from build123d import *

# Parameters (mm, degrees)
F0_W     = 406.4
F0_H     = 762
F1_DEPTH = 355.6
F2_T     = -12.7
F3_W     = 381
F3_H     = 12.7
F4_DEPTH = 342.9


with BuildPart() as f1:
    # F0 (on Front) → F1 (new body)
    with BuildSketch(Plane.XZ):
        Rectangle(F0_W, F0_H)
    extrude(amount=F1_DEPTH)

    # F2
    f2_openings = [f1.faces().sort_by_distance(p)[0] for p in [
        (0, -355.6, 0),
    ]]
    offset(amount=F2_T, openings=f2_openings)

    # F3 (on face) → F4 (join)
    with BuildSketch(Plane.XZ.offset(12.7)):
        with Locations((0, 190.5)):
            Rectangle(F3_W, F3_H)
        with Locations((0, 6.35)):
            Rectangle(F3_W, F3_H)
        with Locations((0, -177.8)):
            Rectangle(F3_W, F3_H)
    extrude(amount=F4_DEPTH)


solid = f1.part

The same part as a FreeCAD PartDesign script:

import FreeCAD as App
import Part
import Sketcher
from FreeCAD import Vector
Q = App.Units.Quantity


def faces_at(feature, points):
    """Names of the faces that lie closest to the given points."""
    faces = feature.Shape.Faces
    near = lambda p: min(range(len(faces)), key=lambda i: faces[i].distToShape(Part.Vertex(*p))[0])
    return sorted({f"Face{near(p) + 1}" for p in points})

doc = App.newDocument("Part")
params = doc.addObject("Spreadsheet::Sheet", "Params")
for row, (alias, value) in enumerate([
    ("sketch1_width", "16 in"),
    ("sketch1_height", "30 in"),
    ("pad1_length", "14 in"),
    ("thickness_wall", "0.5 in"),
    ("sketch2_width", "15 in"),
    ("sketch2_height", "0.5 in"),
    ("pad2_length", "13.5 in"),
], start=1):
    params.set(f"A{row}", alias)
    params.set(f"B{row}", "=" + value)
    params.setAlias(f"B{row}", alias)

body = doc.addObject("PartDesign::Body", "Body")

# Sketch on XZ plane
sketch1 = body.newObject("Sketcher::SketchObject", "Sketch")
sketch1.AttachmentSupport = (doc.getObject("XZ_Plane"), [""])
sketch1.MapMode = "FlatFace"
sketch1.addGeometry(Part.LineSegment(Vector(-203, 381, 0), Vector(-203, -381, 0)), False)
sketch1.addGeometry(Part.LineSegment(Vector(-203, -381, 0), Vector(203, -381, 0)), False)
sketch1.addGeometry(Part.LineSegment(Vector(203, -381, 0), Vector(203, 381, 0)), False)
sketch1.addGeometry(Part.LineSegment(Vector(203, 381, 0), Vector(-203, 381, 0)), False)
sketch1.addConstraint(Sketcher.Constraint("Coincident", 0, 2, 1, 1))
sketch1.addConstraint(Sketcher.Constraint("Coincident", 1, 2, 2, 1))
sketch1.addConstraint(Sketcher.Constraint("Coincident", 2, 2, 3, 1))
sketch1.addConstraint(Sketcher.Constraint("Coincident", 3, 2, 0, 1))
sketch1.addConstraint(Sketcher.Constraint("Vertical", 0))
sketch1.addConstraint(Sketcher.Constraint("Horizontal", 1))
sketch1.addConstraint(Sketcher.Constraint("Vertical", 2))
sketch1.addConstraint(Sketcher.Constraint("Horizontal", 3))
sketch1.addConstraint(Sketcher.Constraint("Symmetric", 0, 2, 2, 2, -1, 1))
sketch1.addConstraint(Sketcher.Constraint("DistanceX", 1, 1, 1, 2, Q("16 in")))
sketch1.addConstraint(Sketcher.Constraint("DistanceY", 0, 2, 0, 1, Q("30 in")))
sketch1.setExpression("Constraints[9]", "Params.sketch1_width")
sketch1.setExpression("Constraints[10]", "Params.sketch1_height")
pad1 = body.newObject("PartDesign::Pad", "Pad")
pad1.Profile = sketch1
pad1.setExpression("Length", "Params.pad1_length")
doc.recompute()

thickness = body.newObject("PartDesign::Thickness", "Thickness")
thickness.Base = (pad1, faces_at(pad1, [(0, -355.6, 0)]))
thickness.setExpression("Value", "Params.thickness_wall")
thickness.Reversed = True
thickness.Join = "Arc"

# Sketch on XZ plane
sketch2 = body.newObject("Sketcher::SketchObject", "Sketch001")
sketch2.AttachmentSupport = (doc.getObject("XZ_Plane"), [""])
sketch2.MapMode = "FlatFace"
sketch2.AttachmentOffset = App.Placement(Vector(0, 0, 0.5 * 25.4), App.Rotation())
sketch2.addGeometry(Part.LineSegment(Vector(-190, 197, 0), Vector(-190, 184, 0)), False)
sketch2.addGeometry(Part.LineSegment(Vector(-190, 184, 0), Vector(190, 184, 0)), False)
sketch2.addGeometry(Part.LineSegment(Vector(190, 184, 0), Vector(190, 197, 0)), False)
sketch2.addGeometry(Part.LineSegment(Vector(190, 197, 0), Vector(-190, 197, 0)), False)
sketch2.addGeometry(Part.LineSegment(Vector(-190, 13, 0), Vector(-190, 0, 0)), False)
sketch2.addGeometry(Part.LineSegment(Vector(-190, 0, 0), Vector(190, 0, 0)), False)
sketch2.addGeometry(Part.LineSegment(Vector(190, 0, 0), Vector(190, 13, 0)), False)
sketch2.addGeometry(Part.LineSegment(Vector(190, 13, 0), Vector(-190, 13, 0)), False)
sketch2.addGeometry(Part.LineSegment(Vector(-190, -171, 0), Vector(-190, -184, 0)), False)
sketch2.addGeometry(Part.LineSegment(Vector(-190, -184, 0), Vector(190, -184, 0)), False)
sketch2.addGeometry(Part.LineSegment(Vector(190, -184, 0), Vector(190, -171, 0)), False)
sketch2.addGeometry(Part.LineSegment(Vector(190, -171, 0), Vector(-190, -171, 0)), False)
sketch2.addConstraint(Sketcher.Constraint("Coincident", 0, 2, 1, 1))
sketch2.addConstraint(Sketcher.Constraint("Coincident", 1, 2, 2, 1))
sketch2.addConstraint(Sketcher.Constraint("Coincident", 2, 2, 3, 1))
sketch2.addConstraint(Sketcher.Constraint("Coincident", 3, 2, 0, 1))
sketch2.addConstraint(Sketcher.Constraint("Coincident", 4, 2, 5, 1))
sketch2.addConstraint(Sketcher.Constraint("Coincident", 5, 2, 6, 1))
sketch2.addConstraint(Sketcher.Constraint("Coincident", 6, 2, 7, 1))
sketch2.addConstraint(Sketcher.Constraint("Coincident", 7, 2, 4, 1))
sketch2.addConstraint(Sketcher.Constraint("Coincident", 8, 2, 9, 1))
sketch2.addConstraint(Sketcher.Constraint("Coincident", 9, 2, 10, 1))
sketch2.addConstraint(Sketcher.Constraint("Coincident", 10, 2, 11, 1))
sketch2.addConstraint(Sketcher.Constraint("Coincident", 11, 2, 8, 1))
sketch2.addConstraint(Sketcher.Constraint("Vertical", 0))
sketch2.addConstraint(Sketcher.Constraint("Horizontal", 1))
sketch2.addConstraint(Sketcher.Constraint("Vertical", 2))
sketch2.addConstraint(Sketcher.Constraint("Horizontal", 3))
sketch2.addConstraint(Sketcher.Constraint("Vertical", 4))
sketch2.addConstraint(Sketcher.Constraint("Horizontal", 5))
sketch2.addConstraint(Sketcher.Constraint("Vertical", 6))
sketch2.addConstraint(Sketcher.Constraint("Horizontal", 7))
sketch2.addConstraint(Sketcher.Constraint("Vertical", 8))
sketch2.addConstraint(Sketcher.Constraint("Horizontal", 9))
sketch2.addConstraint(Sketcher.Constraint("Vertical", 10))
sketch2.addConstraint(Sketcher.Constraint("Horizontal", 11))
sketch2.addConstraint(Sketcher.Constraint("Symmetric", 4, 2, 5, 2, -1, 1))
sketch2.addConstraint(Sketcher.Constraint("Symmetric", 1, 2, 8, 2, -1, 1))
sketch2.addConstraint(Sketcher.Constraint("Vertical", 3, 2, 4, 2))
sketch2.addConstraint(Sketcher.Constraint("Vertical", 2, 2, 5, 2))
sketch2.addConstraint(Sketcher.Constraint("Vertical", 6, 2, 9, 2))
sketch2.addConstraint(Sketcher.Constraint("Equal", 2, 4))
sketch2.addConstraint(Sketcher.Constraint("Equal", 6, 8))
sketch2.addConstraint(Sketcher.Constraint("DistanceX", 1, 1, 1, 2, Q("15 in")))
sketch2.addConstraint(Sketcher.Constraint("DistanceY", 0, 2, 0, 1, Q("0.5 in")))
sketch2.addConstraint(Sketcher.Constraint("DistanceY", 8, 2, 3, 2, Q("15 in")))
sketch2.setExpression("Constraints[31]", "Params.sketch2_width")
sketch2.setExpression("Constraints[32]", "Params.sketch2_height")
pad2 = body.newObject("PartDesign::Pad", "Pad001")
pad2.Profile = sketch2
pad2.setExpression("Length", "Params.pad2_length")

doc.recompute()
